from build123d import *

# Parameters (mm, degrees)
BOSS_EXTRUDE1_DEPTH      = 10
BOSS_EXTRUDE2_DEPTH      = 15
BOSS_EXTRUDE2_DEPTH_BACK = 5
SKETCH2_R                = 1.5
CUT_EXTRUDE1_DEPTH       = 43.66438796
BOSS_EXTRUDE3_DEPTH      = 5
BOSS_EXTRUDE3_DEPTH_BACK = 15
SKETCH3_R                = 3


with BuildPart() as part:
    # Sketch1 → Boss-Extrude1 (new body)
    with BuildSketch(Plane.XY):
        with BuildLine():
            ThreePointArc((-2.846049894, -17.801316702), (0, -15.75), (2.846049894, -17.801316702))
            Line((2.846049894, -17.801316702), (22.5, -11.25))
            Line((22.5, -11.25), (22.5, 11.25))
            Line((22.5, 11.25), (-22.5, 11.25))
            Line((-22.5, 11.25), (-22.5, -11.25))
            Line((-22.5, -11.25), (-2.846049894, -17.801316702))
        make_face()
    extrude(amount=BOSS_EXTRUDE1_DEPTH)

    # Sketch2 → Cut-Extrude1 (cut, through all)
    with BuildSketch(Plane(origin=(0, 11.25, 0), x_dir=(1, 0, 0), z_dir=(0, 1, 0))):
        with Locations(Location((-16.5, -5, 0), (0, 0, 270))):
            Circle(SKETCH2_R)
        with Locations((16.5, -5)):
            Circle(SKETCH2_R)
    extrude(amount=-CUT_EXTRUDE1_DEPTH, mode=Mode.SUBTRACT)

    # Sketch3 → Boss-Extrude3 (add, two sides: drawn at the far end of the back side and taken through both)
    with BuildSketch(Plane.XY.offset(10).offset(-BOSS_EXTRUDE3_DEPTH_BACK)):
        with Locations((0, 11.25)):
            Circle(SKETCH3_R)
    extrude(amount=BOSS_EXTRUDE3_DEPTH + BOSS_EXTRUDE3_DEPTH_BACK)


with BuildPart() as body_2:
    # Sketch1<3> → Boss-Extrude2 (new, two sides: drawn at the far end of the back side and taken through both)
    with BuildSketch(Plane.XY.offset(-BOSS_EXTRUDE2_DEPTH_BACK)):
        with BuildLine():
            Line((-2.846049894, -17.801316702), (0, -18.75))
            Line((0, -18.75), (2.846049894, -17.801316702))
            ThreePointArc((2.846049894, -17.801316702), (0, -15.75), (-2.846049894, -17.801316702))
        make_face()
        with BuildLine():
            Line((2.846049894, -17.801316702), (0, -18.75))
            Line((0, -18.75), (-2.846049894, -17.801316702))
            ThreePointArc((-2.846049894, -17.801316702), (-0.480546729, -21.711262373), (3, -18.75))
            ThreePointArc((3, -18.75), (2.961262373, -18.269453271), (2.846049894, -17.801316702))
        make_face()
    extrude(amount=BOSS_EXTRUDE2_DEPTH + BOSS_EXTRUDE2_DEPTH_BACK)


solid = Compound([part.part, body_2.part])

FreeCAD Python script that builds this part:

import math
import FreeCAD as App
import Part
import Sketcher
from FreeCAD import Vector
Q = App.Units.Quantity

doc = App.newDocument("Part")
body = doc.addObject("PartDesign::Body", "Body")

sketch1 = body.newObject("Sketcher::SketchObject", "Sketch")
sketch1.AttachmentSupport = (doc.getObject("XY_Plane"), [""])
sketch1.MapMode = "FlatFace"
sketch1.addGeometry([
    Part.ArcOfCircle(Part.Circle(Vector(0, -18.8, 0), Vector(0, 0, 1), 3), math.radians(18), math.radians(162)),
    Part.LineSegment(Vector(2.8, -17.8, 0), Vector(22.5, -11.2, 0)),
    Part.LineSegment(Vector(22.5, -11.2, 0), Vector(22.5, 11.2, 0)),
    Part.LineSegment(Vector(22.5, 11.2, 0), Vector(-22.5, 11.2, 0)),
    Part.LineSegment(Vector(-22.5, 11.2, 0), Vector(-22.5, -11.2, 0)),
    Part.LineSegment(Vector(-22.5, -11.2, 0), Vector(-2.8, -17.8, 0)),
], False)
sketch1.addConstraint([
    Sketcher.Constraint("Coincident", 0, 1, 1, 1),
    Sketcher.Constraint("Coincident", 1, 2, 2, 1),
    Sketcher.Constraint("Coincident", 2, 2, 3, 1),
    Sketcher.Constraint("Coincident", 3, 2, 4, 1),
    Sketcher.Constraint("Coincident", 4, 2, 5, 1),
    Sketcher.Constraint("Coincident", 5, 2, 0, 2),
    Sketcher.Constraint("Vertical", 2),
    Sketcher.Constraint("Horizontal", 3),
    Sketcher.Constraint("Vertical", 4),
    Sketcher.Constraint("Symmetric", 1, 2, 3, 2, -1, 1),
    Sketcher.Constraint("Symmetric", 0, 1, 5, 2, -2),
    Sketcher.Constraint("Horizontal", 1, 2, 4, 2),
    Sketcher.Constraint("Radius", 0, Q("3 mm")),
    Sketcher.Constraint("DistanceX", 3, 2, 3, 1, Q("45 mm")),
    Sketcher.Constraint("DistanceY", 2, 1, 2, 2, Q("22.5 mm")),
    Sketcher.Constraint("DistanceY", 0, 3, 2, 2, Q("30 mm")),
    Sketcher.Constraint("DistanceX", 5, 2, 0, 1, Q("5.6921 mm")),
])
pad1 = body.newObject("PartDesign::Pad", "Pad")
pad1.Profile = sketch1
pad1.Length = 10

sketch2 = body.newObject("Sketcher::SketchObject", "Sketch001")
sketch2.AttachmentSupport = (doc.getObject("XZ_Plane"), [""])
sketch2.MapMode = "FlatFace"
sketch2.AttachmentOffset = App.Placement(Vector(0, 0, -11.25), App.Rotation())
sketch2.addGeometry([
    Part.Circle(Vector(-16.5, 5, 0), Vector(0, 0, 1), 1.5),
    Part.Circle(Vector(16.5, 5, 0), Vector(0, 0, 1), 1.5),
], False)
sketch2.addConstraint([
    Sketcher.Constraint("Equal", 0, 1),
    Sketcher.Constraint("Symmetric", 0, 3, 1, 3, -2),
    Sketcher.Constraint("Diameter", 0, Q("3 mm")),
    Sketcher.Constraint("DistanceY", -1, 1, 0, 3, Q("5 mm")),
    Sketcher.Constraint("DistanceX", 0, 3, 1, 3, Q("33 mm")),
])
pocket1 = body.newObject("PartDesign::Pocket", "Pocket")
pocket1.Profile = sketch2
pocket1.Type = "ThroughAll"
pocket1.Reversed = True

sketch3 = body.newObject("Sketcher::SketchObject", "Sketch002")
sketch3.AttachmentSupport = (doc.getObject("XY_Plane"), [""])
sketch3.MapMode = "FlatFace"
sketch3.AttachmentOffset = App.Placement(Vector(0, 0, 10), App.Rotation())
sketch3.addGeometry(Part.Circle(Vector(0, 11.2, 0), Vector(0, 0, 1), 3), False)
sketch3.addConstraint([
    Sketcher.Constraint("PointOnObject", 0, 3, -2),
    Sketcher.Constraint("Diameter", 0, Q("6 mm")),
    Sketcher.Constraint("DistanceY", -1, 1, 0, 3, Q("11.25 mm")),
])
pad2 = body.newObject("PartDesign::Pad", "Pad001")
pad2.Profile = sketch3
pad2.Type = "TwoLengths"
pad2.Length = 5
pad2.Length2 = 15
body2 = doc.addObject("PartDesign::Body", "Body001")

sketch4 = body2.newObject("Sketcher::SketchObject", "Sketch003")
sketch4.AttachmentSupport = (doc.getObject("XY_Plane001"), [""])
sketch4.MapMode = "FlatFace"
sketch4.addGeometry([
    Part.ArcOfCircle(Part.Circle(Vector(0, -18.8, 0), Vector(0, 0, 1), 3), math.radians(18), math.radians(162)),
    Part.ArcOfCircle(Part.Circle(Vector(0, -18.8, 0), Vector(0, 0, 1), 3), math.radians(162), math.radians(360)),
    Part.ArcOfCircle(Part.Circle(Vector(0, -18.7, 0), Vector(0, 0, 1), 3), math.radians(0), math.radians(18.43)),
], False)
sketch4.addConstraint([
    Sketcher.Constraint("Tangent", 0, 2, 1, 1),
    Sketcher.Constraint("Tangent", 1, 2, 2, 1),
    Sketcher.Constraint("Tangent", 2, 2, 0, 1),
    Sketcher.Constraint("Symmetric", 0, 2, 2, 2, -2),
    Sketcher.Constraint("Horizontal", 2, 3, 1, 2),
    Sketcher.Constraint("Radius", 0, Q("3 mm")),
    Sketcher.Constraint("DistanceY", 0, 3, -1, 1, Q("18.75 mm")),
    Sketcher.Constraint("DistanceX", 0, 2, 2, 2, Q("5.6921 mm")),
])
pad3 = body2.newObject("PartDesign::Pad", "Pad002")
pad3.Profile = sketch4
pad3.Type = "TwoLengths"
pad3.Length = 15
pad3.Length2 = 5

doc.recompute()
